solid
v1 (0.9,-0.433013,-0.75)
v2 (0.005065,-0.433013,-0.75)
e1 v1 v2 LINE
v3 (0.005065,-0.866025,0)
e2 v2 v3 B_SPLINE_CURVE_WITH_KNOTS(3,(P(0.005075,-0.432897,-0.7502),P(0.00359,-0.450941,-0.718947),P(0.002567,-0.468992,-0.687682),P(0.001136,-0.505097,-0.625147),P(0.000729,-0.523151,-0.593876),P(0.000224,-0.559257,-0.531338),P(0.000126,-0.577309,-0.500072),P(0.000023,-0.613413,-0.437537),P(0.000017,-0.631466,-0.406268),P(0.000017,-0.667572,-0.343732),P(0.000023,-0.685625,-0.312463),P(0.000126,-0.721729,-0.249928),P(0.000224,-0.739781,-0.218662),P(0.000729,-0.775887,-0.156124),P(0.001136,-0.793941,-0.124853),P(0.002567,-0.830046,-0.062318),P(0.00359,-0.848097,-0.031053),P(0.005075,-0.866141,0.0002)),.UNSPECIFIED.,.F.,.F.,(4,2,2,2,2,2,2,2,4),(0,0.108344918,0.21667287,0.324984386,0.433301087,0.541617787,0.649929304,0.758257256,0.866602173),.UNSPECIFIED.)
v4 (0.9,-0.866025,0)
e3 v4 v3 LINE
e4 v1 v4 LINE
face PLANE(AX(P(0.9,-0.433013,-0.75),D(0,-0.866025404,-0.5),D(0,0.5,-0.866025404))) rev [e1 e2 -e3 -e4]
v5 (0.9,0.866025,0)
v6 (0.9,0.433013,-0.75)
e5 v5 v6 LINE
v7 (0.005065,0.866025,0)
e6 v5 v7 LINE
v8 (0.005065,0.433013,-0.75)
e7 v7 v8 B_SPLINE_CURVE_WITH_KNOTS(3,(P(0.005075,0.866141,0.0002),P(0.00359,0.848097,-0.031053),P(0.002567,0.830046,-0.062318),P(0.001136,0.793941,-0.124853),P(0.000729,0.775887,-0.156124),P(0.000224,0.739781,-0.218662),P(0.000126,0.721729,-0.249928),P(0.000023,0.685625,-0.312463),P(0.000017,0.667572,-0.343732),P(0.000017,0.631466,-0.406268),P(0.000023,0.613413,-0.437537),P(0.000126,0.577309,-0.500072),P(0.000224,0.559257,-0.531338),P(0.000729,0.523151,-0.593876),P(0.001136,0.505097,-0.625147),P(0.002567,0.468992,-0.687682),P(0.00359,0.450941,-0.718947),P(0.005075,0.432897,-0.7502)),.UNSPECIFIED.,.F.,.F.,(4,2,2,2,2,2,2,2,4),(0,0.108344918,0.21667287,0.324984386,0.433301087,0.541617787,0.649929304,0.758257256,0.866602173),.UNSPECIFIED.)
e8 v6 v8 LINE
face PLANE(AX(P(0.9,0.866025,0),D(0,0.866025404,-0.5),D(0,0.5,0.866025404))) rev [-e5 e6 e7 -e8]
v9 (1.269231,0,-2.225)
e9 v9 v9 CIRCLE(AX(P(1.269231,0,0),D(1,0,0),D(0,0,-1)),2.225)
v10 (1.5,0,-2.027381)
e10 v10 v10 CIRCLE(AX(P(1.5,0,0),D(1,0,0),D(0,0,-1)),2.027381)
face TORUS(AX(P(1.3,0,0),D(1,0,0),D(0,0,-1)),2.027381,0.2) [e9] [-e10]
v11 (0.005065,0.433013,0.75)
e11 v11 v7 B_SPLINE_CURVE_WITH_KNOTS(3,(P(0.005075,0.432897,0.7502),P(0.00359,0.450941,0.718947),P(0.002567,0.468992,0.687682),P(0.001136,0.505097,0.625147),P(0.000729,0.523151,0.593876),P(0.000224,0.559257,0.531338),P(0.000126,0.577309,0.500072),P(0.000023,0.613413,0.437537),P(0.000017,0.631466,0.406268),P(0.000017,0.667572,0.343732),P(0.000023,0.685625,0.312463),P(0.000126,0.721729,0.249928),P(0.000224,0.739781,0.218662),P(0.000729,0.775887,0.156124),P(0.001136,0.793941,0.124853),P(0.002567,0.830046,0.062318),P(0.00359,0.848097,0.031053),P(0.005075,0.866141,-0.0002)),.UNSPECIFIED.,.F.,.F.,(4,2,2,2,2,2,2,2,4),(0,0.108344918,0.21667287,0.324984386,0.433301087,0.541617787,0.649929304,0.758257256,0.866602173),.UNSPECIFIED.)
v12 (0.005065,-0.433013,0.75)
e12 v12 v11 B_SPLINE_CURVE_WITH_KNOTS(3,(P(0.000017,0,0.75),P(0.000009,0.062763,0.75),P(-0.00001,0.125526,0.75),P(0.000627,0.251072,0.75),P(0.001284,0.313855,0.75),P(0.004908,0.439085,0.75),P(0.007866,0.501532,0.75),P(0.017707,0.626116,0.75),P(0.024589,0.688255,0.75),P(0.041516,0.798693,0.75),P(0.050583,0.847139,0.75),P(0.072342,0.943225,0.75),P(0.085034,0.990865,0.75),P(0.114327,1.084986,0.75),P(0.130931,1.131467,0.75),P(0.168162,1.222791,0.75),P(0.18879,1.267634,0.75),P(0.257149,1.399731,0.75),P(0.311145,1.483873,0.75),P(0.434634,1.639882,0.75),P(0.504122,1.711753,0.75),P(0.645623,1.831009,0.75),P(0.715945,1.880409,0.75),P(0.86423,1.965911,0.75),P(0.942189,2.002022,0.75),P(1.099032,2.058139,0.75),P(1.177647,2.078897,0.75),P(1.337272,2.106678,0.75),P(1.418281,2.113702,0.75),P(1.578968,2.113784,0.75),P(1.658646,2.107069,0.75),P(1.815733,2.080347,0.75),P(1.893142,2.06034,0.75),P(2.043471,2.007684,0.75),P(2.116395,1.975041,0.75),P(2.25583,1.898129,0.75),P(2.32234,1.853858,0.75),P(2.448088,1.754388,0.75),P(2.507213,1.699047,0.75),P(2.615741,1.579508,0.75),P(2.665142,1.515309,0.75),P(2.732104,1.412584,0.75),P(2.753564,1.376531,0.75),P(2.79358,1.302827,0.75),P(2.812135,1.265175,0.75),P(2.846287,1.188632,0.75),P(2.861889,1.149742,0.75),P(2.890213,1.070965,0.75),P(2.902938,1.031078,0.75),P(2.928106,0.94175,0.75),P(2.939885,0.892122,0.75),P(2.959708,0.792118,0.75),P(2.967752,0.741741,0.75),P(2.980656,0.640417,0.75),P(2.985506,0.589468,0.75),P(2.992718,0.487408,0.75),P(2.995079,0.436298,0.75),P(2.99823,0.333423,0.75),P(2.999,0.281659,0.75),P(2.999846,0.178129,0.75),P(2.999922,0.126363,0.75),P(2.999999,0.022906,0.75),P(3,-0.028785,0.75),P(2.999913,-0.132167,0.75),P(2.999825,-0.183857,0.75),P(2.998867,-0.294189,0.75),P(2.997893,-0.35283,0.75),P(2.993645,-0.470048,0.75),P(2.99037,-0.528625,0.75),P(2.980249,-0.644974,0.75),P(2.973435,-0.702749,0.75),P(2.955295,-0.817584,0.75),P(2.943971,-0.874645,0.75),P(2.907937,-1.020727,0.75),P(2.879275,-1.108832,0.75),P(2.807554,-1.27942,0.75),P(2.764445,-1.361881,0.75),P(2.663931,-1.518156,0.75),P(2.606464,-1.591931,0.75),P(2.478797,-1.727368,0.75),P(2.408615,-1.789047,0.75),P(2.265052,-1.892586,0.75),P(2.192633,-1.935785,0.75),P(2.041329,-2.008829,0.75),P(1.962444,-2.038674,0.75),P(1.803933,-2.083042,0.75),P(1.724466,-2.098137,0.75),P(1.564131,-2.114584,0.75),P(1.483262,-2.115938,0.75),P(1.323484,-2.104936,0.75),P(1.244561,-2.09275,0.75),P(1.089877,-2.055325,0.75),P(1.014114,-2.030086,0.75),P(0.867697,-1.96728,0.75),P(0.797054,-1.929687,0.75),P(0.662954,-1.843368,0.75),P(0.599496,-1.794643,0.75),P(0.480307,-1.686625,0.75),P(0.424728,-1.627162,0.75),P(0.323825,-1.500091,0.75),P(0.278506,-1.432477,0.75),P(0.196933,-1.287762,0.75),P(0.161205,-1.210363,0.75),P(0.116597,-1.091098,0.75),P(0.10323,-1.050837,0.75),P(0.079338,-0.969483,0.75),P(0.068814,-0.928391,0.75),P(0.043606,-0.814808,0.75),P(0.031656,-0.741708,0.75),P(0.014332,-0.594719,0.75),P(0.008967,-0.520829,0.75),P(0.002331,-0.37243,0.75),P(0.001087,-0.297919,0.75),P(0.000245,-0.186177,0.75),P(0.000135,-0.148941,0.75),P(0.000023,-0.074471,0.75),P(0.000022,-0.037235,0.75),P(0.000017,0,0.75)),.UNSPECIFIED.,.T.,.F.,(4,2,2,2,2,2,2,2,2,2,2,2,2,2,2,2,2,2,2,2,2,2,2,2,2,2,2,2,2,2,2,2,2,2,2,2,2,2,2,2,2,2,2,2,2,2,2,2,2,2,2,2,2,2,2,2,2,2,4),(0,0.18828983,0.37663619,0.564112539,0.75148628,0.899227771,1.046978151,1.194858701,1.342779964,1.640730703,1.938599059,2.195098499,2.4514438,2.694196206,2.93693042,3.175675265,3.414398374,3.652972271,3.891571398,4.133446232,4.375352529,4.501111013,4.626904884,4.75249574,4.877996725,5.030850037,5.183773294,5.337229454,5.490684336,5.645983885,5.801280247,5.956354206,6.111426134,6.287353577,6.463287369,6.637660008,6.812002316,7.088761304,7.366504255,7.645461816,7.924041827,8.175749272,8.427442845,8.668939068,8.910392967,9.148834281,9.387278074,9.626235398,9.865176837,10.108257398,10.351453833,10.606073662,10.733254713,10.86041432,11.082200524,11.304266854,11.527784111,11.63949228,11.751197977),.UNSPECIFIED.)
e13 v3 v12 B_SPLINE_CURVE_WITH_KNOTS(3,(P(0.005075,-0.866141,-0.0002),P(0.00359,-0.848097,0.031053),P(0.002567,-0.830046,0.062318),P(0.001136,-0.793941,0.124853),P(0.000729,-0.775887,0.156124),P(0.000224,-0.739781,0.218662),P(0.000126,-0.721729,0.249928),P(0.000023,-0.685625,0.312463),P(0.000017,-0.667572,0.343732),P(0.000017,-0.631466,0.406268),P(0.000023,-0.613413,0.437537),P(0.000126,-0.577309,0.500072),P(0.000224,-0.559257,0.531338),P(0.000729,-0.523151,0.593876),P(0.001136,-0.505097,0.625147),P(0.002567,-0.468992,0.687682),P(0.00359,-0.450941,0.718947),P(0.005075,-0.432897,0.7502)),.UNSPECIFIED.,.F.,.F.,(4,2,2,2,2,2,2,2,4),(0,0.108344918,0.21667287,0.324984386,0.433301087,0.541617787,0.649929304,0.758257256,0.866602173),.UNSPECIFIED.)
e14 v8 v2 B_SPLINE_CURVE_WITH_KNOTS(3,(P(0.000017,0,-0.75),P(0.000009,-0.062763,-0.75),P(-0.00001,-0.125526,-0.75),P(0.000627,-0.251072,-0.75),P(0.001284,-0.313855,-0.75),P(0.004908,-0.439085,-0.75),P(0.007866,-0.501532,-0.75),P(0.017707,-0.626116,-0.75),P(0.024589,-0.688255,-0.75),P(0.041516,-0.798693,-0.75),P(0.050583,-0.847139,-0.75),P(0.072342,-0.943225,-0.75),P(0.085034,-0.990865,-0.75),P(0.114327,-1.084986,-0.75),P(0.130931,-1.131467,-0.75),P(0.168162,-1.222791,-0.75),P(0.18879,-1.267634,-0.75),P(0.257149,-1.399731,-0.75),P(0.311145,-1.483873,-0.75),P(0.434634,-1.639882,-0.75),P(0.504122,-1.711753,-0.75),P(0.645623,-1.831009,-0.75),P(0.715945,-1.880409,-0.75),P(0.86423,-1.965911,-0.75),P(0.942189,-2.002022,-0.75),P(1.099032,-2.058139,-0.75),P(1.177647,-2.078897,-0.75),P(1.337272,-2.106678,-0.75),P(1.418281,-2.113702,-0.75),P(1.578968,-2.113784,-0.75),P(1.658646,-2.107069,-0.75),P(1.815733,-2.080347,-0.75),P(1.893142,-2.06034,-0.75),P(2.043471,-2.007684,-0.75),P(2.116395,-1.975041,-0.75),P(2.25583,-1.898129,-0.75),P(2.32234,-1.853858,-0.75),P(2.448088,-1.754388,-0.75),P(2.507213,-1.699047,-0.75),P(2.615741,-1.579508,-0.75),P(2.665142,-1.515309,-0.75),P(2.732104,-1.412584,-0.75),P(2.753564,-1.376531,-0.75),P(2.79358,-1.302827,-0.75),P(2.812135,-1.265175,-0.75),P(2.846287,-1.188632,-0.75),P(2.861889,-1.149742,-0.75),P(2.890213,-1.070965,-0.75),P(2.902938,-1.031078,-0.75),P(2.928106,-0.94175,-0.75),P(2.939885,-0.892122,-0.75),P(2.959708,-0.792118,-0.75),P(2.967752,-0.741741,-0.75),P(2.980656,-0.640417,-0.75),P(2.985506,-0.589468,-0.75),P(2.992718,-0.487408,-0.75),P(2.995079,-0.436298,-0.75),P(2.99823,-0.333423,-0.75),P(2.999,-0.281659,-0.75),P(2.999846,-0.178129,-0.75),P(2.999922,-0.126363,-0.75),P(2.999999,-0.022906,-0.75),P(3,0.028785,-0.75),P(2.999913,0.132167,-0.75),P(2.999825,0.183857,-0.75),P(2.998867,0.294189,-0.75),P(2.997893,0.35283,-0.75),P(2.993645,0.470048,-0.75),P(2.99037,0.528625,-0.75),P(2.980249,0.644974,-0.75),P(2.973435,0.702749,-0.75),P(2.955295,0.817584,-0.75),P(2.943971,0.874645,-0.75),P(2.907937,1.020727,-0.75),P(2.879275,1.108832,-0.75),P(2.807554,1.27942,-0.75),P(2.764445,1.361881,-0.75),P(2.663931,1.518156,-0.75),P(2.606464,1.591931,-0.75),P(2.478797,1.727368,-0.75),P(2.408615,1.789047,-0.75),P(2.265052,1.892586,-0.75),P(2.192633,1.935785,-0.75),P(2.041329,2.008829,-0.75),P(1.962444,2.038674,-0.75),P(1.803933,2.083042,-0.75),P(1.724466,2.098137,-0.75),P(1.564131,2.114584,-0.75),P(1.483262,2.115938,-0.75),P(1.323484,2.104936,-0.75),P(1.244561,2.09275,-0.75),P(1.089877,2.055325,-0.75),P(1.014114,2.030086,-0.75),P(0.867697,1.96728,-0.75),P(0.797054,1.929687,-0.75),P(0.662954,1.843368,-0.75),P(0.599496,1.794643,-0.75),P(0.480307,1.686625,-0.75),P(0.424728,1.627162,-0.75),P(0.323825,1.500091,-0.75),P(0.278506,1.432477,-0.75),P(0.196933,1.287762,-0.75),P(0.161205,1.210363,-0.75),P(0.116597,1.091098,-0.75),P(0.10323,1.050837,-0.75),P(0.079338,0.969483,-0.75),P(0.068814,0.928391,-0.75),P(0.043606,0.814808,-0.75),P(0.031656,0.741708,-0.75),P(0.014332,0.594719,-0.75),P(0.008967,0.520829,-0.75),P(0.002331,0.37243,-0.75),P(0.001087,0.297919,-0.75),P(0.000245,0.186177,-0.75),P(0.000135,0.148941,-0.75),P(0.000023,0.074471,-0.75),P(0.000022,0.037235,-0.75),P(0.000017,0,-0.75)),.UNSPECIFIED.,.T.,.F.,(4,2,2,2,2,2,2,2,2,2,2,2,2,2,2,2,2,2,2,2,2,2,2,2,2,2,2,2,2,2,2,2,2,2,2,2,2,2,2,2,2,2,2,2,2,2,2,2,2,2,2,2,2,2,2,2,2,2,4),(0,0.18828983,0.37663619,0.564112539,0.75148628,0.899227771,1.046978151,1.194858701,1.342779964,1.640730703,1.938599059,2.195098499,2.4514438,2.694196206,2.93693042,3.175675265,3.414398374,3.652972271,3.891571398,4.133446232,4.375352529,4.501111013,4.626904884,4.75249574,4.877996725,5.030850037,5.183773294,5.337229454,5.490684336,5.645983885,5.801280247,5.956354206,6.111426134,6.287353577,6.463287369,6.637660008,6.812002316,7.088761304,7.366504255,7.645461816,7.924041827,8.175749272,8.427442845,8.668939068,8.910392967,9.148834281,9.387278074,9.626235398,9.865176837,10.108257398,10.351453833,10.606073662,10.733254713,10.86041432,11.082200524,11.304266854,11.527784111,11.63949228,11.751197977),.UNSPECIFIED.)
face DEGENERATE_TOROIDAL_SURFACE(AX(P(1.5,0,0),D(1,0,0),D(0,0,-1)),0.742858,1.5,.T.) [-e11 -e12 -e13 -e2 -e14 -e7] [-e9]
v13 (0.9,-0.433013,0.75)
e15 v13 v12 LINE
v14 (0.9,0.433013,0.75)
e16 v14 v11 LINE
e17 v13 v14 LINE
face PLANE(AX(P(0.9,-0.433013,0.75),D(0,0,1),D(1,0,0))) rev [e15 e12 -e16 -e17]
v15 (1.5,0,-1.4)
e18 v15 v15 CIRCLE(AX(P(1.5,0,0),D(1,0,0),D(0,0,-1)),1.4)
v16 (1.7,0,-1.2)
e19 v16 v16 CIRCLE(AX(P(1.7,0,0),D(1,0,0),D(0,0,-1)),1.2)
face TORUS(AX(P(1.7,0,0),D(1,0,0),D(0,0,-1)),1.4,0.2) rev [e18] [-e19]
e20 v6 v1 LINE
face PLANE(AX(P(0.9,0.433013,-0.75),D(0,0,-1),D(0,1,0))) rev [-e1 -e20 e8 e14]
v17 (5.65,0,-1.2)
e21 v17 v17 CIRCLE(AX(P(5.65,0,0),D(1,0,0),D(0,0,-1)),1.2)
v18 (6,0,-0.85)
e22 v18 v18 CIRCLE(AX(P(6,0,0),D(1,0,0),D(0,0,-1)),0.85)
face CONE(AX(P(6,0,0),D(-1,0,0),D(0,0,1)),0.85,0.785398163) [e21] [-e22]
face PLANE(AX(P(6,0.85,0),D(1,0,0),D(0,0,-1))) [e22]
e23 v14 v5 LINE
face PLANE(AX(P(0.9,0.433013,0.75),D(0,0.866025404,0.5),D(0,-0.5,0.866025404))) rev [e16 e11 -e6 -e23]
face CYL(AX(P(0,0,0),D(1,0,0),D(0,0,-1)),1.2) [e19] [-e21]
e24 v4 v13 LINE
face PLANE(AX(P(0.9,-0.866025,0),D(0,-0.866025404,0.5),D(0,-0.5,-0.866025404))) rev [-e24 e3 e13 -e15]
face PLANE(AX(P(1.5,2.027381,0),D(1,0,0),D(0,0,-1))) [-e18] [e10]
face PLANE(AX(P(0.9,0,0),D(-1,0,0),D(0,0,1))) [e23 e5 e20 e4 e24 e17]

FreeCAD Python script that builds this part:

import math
import FreeCAD as App
import Part
import Sketcher
Q = App.Units.Quantity

doc = App.newDocument("Part")
body = doc.addObject("PartDesign::Body", "Body")

# Sketch on XY plane
sketch1 = doc.addObject("Sketcher::SketchObject", "Sketch")
body.addObject(sketch1)
sketch1.AttachmentSupport = (doc.XY_Plane, [""])
sketch1.MapMode = "FlatFace"
sketch1.addGeometry([
    Part.LineSegment(App.Vector(0, 0.742858, 0), App.Vector(0, 0, 0)),  # 0
    Part.LineSegment(App.Vector(0, 0, 0), App.Vector(6, 0, 0)),  # 1
    Part.LineSegment(App.Vector(6, 0, 0), App.Vector(6, 0.85, 0)),  # 2
    Part.LineSegment(App.Vector(6, 0.85, 0), App.Vector(5.65, 1.2, 0)),  # 3
    Part.LineSegment(App.Vector(5.65, 1.2, 0), App.Vector(1.7, 1.2, 0)),  # 4
    Part.ArcOfCircle(Part.Circle(App.Vector(1.7, 1.4, 0), App.Vector(0, 0, 1), 0.2), math.radians(-180), math.radians(-90)),  # 5
    Part.LineSegment(App.Vector(1.5, 1.4, 0), App.Vector(1.5, 2.027381, 0)),  # 6
    Part.ArcOfCircle(Part.Circle(App.Vector(1.3, 2.027381, 0), App.Vector(0, 0, 1), 0.2), math.radians(0), math.radians(98.849883)),  # 7
    Part.ArcOfCircle(Part.Circle(App.Vector(1.5, 0.742858, 0), App.Vector(0, 0, 1), 1.5), math.radians(98.849883), math.radians(180)),  # 8
], False)
sketch1.addConstraint([
    Sketcher.Constraint("Coincident", 0, 2, 1, 1),
    Sketcher.Constraint("Coincident", 1, 2, 2, 1),
    Sketcher.Constraint("Coincident", 2, 2, 3, 1),
    Sketcher.Constraint("Coincident", 3, 2, 4, 1),
    Sketcher.Constraint("Tangent", 4, 2, 5, 2),
    Sketcher.Constraint("Tangent", 5, 1, 6, 1),
    Sketcher.Constraint("Tangent", 6, 2, 7, 1),
    Sketcher.Constraint("Tangent", 7, 2, 8, 1),
    Sketcher.Constraint("Tangent", 8, 2, 0, 1),
    Sketcher.Constraint("Vertical", 0),
    Sketcher.Constraint("Horizontal", 1),
    Sketcher.Constraint("Vertical", 2),
    Sketcher.Constraint("Horizontal", 4),
    Sketcher.Constraint("Vertical", 6),
    Sketcher.Constraint("Coincident", 0, 2, -1, 1),
    Sketcher.Constraint("Equal", 5, 7),
    Sketcher.Constraint("Vertical", 8, 3, 5, 1),
    Sketcher.Constraint("Radius", 5, Q("0.2 mm")),
    Sketcher.Constraint("Radius", 8, Q("1.5 mm")),
    Sketcher.Constraint("DistanceX", 1, 1, 1, 2, Q("6 mm")),
    Sketcher.Constraint("Angle", 3, Q("135 deg")),
    Sketcher.Constraint("DistanceX", 4, 2, 4, 1, Q("3.95 mm")),
    Sketcher.Constraint("DistanceY", 2, 1, 2, 2, Q("0.85 mm")),
    Sketcher.Constraint("DistanceY", -1, 1, 7, 2, Q("2.225 mm")),
])
revolution = doc.addObject("PartDesign::Revolution", "Revolution")
body.addObject(revolution)
revolution.Profile = sketch1
revolution.ReferenceAxis = (sketch1, ["H_Axis"])
revolution.Angle = 360

# Sketch on YZ plane
sketch2 = doc.addObject("Sketcher::SketchObject", "Sketch001")
body.addObject(sketch2)
sketch2.AttachmentSupport = (doc.YZ_Plane, [""])
sketch2.MapMode = "FlatFace"
sketch2.addGeometry([
    Part.LineSegment(App.Vector(-0.433013, 0.75, 0), App.Vector(0.433013, 0.75, 0)),  # 0
    Part.LineSegment(App.Vector(0.433013, 0.75, 0), App.Vector(0.866025, 0, 0)),  # 1
    Part.LineSegment(App.Vector(0.866025, 0, 0), App.Vector(0.433013, -0.75, 0)),  # 2
    Part.LineSegment(App.Vector(0.433013, -0.75, 0), App.Vector(-0.433013, -0.75, 0)),  # 3
    Part.LineSegment(App.Vector(-0.433013, -0.75, 0), App.Vector(-0.866025, 0, 0)),  # 4
    Part.LineSegment(App.Vector(-0.866025, 0, 0), App.Vector(-0.433013, 0.75, 0)),  # 5
], False)
sketch2.addConstraint([
    Sketcher.Constraint("Coincident", 0, 2, 1, 1),
    Sketcher.Constraint("Coincident", 1, 2, 2, 1),
    Sketcher.Constraint("Coincident", 2, 2, 3, 1),
    Sketcher.Constraint("Coincident", 3, 2, 4, 1),
    Sketcher.Constraint("Coincident", 4, 2, 5, 1),
    Sketcher.Constraint("Coincident", 5, 2, 0, 1),
    Sketcher.Constraint("Horizontal", 0),
    Sketcher.Constraint("Horizontal", 3),
    Sketcher.Constraint("Symmetric", 0, 2, 3, 2, -1, 1),
    Sketcher.Constraint("Symmetric", 1, 2, 4, 2, -1, 1),
    Sketcher.Constraint("PointOnObject", 1, 2, -1),
    Sketcher.Constraint("Parallel", 2, 5),
    Sketcher.Constraint("Vertical", 0, 2, 2, 2),
    Sketcher.Constraint("Angle", 1, Q("-60 deg")),
    Sketcher.Constraint("DistanceY", 2, 2, 0, 2, Q("1.5 mm")),
    Sketcher.Constraint("DistanceX", 0, 1, 0, 2, Q("0.866025 mm")),
])
pocket1 = doc.addObject("PartDesign::Pocket", "Pocket")
body.addObject(pocket1)
pocket1.Profile = sketch2
pocket1.Length = 0.9
pocket1.Reversed = True

doc.recompute()
